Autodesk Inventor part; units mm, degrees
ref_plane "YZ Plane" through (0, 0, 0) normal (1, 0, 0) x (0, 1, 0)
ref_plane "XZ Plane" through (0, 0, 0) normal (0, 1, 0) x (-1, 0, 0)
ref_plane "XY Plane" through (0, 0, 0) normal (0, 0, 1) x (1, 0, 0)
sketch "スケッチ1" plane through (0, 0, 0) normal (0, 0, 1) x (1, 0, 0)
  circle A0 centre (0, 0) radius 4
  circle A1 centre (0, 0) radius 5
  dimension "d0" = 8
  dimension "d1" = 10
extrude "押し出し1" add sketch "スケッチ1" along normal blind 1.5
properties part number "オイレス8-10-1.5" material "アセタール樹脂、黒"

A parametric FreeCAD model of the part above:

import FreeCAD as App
import Part
import Sketcher
from FreeCAD import Vector

doc = App.newDocument("Part")
body = doc.addObject("PartDesign::Body", "Body")

sketch1 = body.newObject("Sketcher::SketchObject", "Sketch")
sketch1.AttachmentSupport = (doc.getObject("XY_Plane"), [""])
sketch1.MapMode = "FlatFace"
sketch1.addGeometry([
    Part.Circle(Vector(0, 0, 0), Vector(0, 0, 1), 5),
    Part.Circle(Vector(0, 0, 0), Vector(0, 0, 1), 4),
], False)
sketch1.addConstraint([
    Sketcher.Constraint("Coincident", 0, 3, -1, 1),
    Sketcher.Constraint("Coincident", 1, 3, -1, 1),
    Sketcher.Constraint("Diameter", 0, 10.0),
    Sketcher.Constraint("Diameter", 1, 8.0),
])
pad1 = body.newObject("PartDesign::Pad", "Pad")
pad1.Profile = sketch1
pad1.Length = 1.5

doc.recompute()
